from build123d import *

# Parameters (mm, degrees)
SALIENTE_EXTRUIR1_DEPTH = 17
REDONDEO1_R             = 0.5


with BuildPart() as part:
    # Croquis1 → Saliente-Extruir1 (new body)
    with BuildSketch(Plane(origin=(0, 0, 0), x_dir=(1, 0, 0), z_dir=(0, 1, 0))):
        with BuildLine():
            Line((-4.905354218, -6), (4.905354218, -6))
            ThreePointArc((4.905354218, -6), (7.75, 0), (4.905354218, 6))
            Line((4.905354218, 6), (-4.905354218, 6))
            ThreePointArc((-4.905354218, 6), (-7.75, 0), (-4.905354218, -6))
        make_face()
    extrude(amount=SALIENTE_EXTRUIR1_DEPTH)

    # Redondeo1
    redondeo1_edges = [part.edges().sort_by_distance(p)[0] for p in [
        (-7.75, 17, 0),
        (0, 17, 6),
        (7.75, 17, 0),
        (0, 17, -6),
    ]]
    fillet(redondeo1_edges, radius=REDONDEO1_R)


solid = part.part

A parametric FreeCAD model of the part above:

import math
import FreeCAD as App
import Part
import Sketcher
from FreeCAD import Vector
Q = App.Units.Quantity


def edges_at(feature, points):
    """Names of the edges that pass closest to the given points."""
    edges = feature.Shape.Edges
    near = lambda p: min(range(len(edges)), key=lambda i: edges[i].distToShape(Part.Vertex(*p))[0])
    return sorted({f"Edge{near(p) + 1}" for p in points})

doc = App.newDocument("Part")
body = doc.addObject("PartDesign::Body", "Body")

sketch1 = doc.addObject("Sketcher::SketchObject", "Sketch")
body.addObject(sketch1)
sketch1.AttachmentSupport = (doc.XZ_Plane, [""])
sketch1.MapMode = "FlatFace"
sketch1.addGeometry(Part.LineSegment(Vector(-4.905354, 6, 0), Vector(4.905354, 6, 0)), False)
sketch1.addGeometry(Part.ArcOfCircle(Part.Circle(Vector(0, 0, 0), Vector(0, 0, 1), 7.75), math.radians(-50.731974), math.radians(50.731974)), False)
sketch1.addGeometry(Part.LineSegment(Vector(4.905354, -6, 0), Vector(-4.905354, -6, 0)), False)
sketch1.addGeometry(Part.ArcOfCircle(Part.Circle(Vector(0, 0, 0), Vector(0, 0, 1), 7.75), math.radians(129.268026), math.radians(230.731974)), False)
sketch1.addConstraint(Sketcher.Constraint("Coincident", 0, 2, 1, 2))
sketch1.addConstraint(Sketcher.Constraint("Coincident", 1, 1, 2, 1))
sketch1.addConstraint(Sketcher.Constraint("Coincident", 2, 2, 3, 2))
sketch1.addConstraint(Sketcher.Constraint("Coincident", 3, 1, 0, 1))
sketch1.addConstraint(Sketcher.Constraint("Horizontal", 0))
sketch1.addConstraint(Sketcher.Constraint("Horizontal", 2))
sketch1.addConstraint(Sketcher.Constraint("Coincident", 1, 3, -1, 1))
sketch1.addConstraint(Sketcher.Constraint("Coincident", 3, 3, -1, 1))
sketch1.addConstraint(Sketcher.Constraint("Equal", 1, 3))
sketch1.addConstraint(Sketcher.Constraint("Vertical", 0, 2, 1, 1))
sketch1.addConstraint(Sketcher.Constraint("Radius", 1, Q("7.75 mm")))
sketch1.addConstraint(Sketcher.Constraint("DistanceY", -1, 1, 0, 2, Q("6 mm")))
pad1 = doc.addObject("PartDesign::Pad", "Pad")
body.addObject(pad1)
pad1.Profile = sketch1
pad1.Length = 17
pad1.Reversed = True
doc.recompute()

fillet = doc.addObject("PartDesign::Fillet", "Fillet")
body.addObject(fillet)
fillet.Base = (pad1, edges_at(pad1, [
    (-7.75, 17, 0),
    (0, 17, 6),
    (7.75, 17, 0),
    (0, 17, -6),
]))
fillet.Radius = 0.5

doc.recompute()
